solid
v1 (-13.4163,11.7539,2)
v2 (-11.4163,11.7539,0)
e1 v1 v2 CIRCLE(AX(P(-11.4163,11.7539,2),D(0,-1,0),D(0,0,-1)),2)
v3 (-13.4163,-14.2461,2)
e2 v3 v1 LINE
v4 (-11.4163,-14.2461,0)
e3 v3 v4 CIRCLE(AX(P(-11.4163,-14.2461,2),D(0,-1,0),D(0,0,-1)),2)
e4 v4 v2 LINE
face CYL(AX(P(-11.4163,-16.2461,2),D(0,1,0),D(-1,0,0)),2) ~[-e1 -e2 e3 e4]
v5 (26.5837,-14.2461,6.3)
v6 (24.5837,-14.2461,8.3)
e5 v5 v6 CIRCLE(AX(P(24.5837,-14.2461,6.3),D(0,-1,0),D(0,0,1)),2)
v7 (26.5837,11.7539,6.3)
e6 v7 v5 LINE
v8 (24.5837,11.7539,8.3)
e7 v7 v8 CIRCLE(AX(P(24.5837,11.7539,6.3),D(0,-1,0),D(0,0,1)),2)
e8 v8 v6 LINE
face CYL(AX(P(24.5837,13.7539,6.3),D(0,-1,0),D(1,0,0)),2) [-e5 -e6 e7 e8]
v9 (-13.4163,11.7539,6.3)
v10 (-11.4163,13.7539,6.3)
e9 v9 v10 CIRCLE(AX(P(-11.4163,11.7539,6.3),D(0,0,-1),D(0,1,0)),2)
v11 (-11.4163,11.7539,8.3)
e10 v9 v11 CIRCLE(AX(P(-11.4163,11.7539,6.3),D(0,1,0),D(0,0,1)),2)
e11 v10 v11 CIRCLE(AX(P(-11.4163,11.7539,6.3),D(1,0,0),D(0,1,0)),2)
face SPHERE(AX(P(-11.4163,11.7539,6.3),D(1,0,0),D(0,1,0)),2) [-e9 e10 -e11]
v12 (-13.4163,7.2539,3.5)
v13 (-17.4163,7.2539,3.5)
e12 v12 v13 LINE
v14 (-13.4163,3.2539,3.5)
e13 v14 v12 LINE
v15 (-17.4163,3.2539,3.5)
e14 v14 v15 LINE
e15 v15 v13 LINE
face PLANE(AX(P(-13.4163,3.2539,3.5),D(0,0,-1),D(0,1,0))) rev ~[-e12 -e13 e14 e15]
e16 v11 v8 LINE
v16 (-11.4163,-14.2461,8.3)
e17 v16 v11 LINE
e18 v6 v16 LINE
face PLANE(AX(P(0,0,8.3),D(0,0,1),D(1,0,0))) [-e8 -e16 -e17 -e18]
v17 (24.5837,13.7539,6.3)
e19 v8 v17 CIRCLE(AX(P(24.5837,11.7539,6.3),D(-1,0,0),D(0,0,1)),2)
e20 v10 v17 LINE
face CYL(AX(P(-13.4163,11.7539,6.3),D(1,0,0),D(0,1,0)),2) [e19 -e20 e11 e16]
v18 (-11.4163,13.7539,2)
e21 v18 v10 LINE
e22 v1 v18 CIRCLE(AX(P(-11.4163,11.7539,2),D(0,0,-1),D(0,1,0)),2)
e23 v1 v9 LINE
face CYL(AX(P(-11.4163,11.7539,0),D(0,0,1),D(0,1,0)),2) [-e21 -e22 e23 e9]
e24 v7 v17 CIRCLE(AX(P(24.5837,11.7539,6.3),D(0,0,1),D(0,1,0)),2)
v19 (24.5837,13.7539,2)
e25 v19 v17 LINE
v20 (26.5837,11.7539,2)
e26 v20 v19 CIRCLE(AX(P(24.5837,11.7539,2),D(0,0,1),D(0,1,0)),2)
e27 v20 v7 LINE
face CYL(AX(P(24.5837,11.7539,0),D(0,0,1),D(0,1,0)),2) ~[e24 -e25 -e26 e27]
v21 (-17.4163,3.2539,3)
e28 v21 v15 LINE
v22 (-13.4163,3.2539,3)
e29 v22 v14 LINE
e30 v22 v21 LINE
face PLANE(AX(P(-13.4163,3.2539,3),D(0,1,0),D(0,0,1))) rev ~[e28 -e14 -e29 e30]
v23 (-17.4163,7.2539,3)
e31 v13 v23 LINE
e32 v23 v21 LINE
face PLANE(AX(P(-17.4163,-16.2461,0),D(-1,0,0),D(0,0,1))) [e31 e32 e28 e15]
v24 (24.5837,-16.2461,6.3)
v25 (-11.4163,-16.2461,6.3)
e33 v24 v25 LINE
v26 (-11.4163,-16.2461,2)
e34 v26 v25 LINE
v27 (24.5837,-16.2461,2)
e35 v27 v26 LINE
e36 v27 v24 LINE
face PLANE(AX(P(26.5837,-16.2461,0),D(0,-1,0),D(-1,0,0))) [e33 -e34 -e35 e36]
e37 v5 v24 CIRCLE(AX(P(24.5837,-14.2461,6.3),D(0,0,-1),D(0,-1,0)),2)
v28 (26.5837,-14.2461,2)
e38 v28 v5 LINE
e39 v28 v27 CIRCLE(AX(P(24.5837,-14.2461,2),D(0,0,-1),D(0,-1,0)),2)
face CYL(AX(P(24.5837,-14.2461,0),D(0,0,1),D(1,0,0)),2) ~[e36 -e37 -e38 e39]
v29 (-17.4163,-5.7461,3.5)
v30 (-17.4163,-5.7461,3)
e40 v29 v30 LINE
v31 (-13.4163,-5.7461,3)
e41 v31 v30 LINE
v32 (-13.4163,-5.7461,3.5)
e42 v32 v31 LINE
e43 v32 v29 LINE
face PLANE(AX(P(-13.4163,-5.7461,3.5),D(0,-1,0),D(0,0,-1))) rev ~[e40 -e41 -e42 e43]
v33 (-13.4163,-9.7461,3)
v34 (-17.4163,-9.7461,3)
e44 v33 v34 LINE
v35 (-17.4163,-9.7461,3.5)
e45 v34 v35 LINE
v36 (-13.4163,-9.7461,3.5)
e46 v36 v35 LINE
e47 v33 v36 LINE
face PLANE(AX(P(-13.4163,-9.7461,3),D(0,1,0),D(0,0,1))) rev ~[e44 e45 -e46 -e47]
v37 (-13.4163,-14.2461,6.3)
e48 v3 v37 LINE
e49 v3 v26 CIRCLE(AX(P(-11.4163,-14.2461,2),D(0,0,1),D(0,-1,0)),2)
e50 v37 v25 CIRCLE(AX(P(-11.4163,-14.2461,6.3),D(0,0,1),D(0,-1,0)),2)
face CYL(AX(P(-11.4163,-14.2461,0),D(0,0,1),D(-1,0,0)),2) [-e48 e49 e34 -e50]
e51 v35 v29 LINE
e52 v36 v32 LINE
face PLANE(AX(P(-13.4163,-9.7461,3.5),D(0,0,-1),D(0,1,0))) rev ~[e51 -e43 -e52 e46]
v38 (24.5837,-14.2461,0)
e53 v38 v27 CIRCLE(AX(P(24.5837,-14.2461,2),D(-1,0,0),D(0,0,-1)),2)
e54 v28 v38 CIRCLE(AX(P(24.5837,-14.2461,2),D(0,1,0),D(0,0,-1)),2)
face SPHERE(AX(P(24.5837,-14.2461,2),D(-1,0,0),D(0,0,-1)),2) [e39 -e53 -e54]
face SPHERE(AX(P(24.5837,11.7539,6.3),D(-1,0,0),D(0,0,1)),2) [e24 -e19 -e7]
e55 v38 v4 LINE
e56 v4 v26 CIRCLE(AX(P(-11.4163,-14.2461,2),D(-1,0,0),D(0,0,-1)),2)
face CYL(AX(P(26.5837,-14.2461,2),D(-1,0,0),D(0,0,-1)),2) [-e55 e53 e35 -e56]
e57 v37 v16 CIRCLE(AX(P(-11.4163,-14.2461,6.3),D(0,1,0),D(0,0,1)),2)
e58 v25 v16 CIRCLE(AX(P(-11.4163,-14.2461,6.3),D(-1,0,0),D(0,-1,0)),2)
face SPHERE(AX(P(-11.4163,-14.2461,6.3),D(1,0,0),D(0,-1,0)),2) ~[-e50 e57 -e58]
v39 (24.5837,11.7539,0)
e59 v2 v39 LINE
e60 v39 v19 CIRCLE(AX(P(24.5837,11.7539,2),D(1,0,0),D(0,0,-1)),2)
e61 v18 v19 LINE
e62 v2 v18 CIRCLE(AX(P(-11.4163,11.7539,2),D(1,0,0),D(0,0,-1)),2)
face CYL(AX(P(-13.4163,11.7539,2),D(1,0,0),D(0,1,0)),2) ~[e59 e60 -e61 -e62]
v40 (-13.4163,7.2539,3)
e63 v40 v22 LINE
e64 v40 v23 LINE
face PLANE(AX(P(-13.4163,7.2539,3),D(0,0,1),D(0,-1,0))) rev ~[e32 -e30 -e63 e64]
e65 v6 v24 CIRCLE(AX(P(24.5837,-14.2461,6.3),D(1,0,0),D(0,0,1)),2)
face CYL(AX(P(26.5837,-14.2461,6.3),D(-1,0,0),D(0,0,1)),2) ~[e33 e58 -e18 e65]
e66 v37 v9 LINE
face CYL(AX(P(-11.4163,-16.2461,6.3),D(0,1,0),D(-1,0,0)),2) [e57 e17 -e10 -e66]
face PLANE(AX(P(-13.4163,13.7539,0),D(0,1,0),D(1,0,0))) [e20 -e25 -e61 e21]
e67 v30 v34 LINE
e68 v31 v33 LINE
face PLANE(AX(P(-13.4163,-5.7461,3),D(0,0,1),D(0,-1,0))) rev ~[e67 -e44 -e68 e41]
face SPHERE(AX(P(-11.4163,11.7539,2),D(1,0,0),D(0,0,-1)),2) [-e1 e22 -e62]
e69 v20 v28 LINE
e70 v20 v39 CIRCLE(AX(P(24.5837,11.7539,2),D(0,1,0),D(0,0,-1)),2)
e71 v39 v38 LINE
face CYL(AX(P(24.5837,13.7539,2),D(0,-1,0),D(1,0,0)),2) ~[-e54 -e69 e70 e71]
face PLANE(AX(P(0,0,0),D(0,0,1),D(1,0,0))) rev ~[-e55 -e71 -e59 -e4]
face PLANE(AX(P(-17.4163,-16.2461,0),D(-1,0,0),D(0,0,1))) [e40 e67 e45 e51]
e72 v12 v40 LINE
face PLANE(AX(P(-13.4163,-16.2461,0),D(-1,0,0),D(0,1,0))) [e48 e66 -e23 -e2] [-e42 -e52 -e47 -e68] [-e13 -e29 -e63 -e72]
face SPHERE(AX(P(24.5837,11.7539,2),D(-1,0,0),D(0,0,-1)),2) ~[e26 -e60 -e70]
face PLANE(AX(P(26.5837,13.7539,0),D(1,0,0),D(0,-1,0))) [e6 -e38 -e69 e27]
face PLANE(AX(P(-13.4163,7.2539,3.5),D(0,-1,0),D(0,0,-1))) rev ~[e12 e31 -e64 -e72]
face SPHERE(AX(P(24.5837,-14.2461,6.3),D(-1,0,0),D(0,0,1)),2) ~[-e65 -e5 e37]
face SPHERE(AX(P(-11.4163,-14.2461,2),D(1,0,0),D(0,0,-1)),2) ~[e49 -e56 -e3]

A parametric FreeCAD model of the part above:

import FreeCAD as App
import Part
import Sketcher

V = App.Vector


def edges_at(feature, points):
    """Names of the edges that pass closest to the given points."""
    edges = feature.Shape.Edges
    near = lambda p: min(range(len(edges)), key=lambda i: edges[i].distToShape(Part.Vertex(*p))[0])
    return sorted({f"Edge{near(p) + 1}" for p in points})

doc = App.newDocument("Part")
body = doc.addObject("PartDesign::Body", "Body")

# Sketch on XY plane
sketch1 = body.newObject("Sketcher::SketchObject", "Sketch")
sketch1.AttachmentSupport = (doc.getObject("XY_Plane"), [""])
sketch1.MapMode = "FlatFace"
sketch1.addGeometry([
    Part.LineSegment(V(26.5837, 13.7539, 0), V(-13.4163, 13.7539, 0)),
    Part.LineSegment(V(-13.4163, 13.7539, 0), V(-13.4163, -16.2461, 0)),
    Part.LineSegment(V(-13.4163, -16.2461, 0), V(26.5837, -16.2461, 0)),
    Part.LineSegment(V(26.5837, -16.2461, 0), V(26.5837, 13.7539, 0)),
], False)
sketch1.addConstraint([
    Sketcher.Constraint("Coincident", 0, 2, 1, 1),
    Sketcher.Constraint("Coincident", 1, 2, 2, 1),
    Sketcher.Constraint("Coincident", 2, 2, 3, 1),
    Sketcher.Constraint("Coincident", 3, 2, 0, 1),
    Sketcher.Constraint("Horizontal", 0),
    Sketcher.Constraint("Vertical", 1),
    Sketcher.Constraint("Horizontal", 2),
    Sketcher.Constraint("Vertical", 3),
    Sketcher.Constraint("DistanceX", 0, 2, 0, 1, 40.0),
    Sketcher.Constraint("DistanceY", 1, 2, 1, 1, 30.0),
    Sketcher.Constraint("DistanceY", -1, 1, 0, 2, 13.754),
    Sketcher.Constraint("DistanceX", 0, 2, -1, 1, 13.4163),
])
pad1 = body.newObject("PartDesign::Pad", "Pad")
pad1.Profile = sketch1
pad1.Length = 8.3

# Sketch on YZ plane
sketch2 = body.newObject("Sketcher::SketchObject", "Sketch001")
sketch2.AttachmentSupport = (doc.getObject("YZ_Plane"), [""])
sketch2.MapMode = "FlatFace"
sketch2.AttachmentOffset = App.Placement(V(0, 0, -13.4163), App.Rotation())
sketch2.addGeometry([
    Part.LineSegment(V(-5.7461, 3, 0), V(-9.7461, 3, 0)),  # 0
    Part.LineSegment(V(-9.7461, 3, 0), V(-9.7461, 3.5, 0)),  # 1
    Part.LineSegment(V(-9.7461, 3.5, 0), V(-5.7461, 3.5, 0)),  # 2
    Part.LineSegment(V(-5.7461, 3.5, 0), V(-5.7461, 3, 0)),  # 3
    Part.LineSegment(V(7.2539, 3, 0), V(3.2539, 3, 0)),  # 4
    Part.LineSegment(V(3.2539, 3, 0), V(3.2539, 3.5, 0)),  # 5
    Part.LineSegment(V(3.2539, 3.5, 0), V(7.2539, 3.5, 0)),  # 6
    Part.LineSegment(V(7.2539, 3.5, 0), V(7.2539, 3, 0)),  # 7
], False)
sketch2.addConstraint([
    Sketcher.Constraint("Coincident", 0, 2, 1, 1),
    Sketcher.Constraint("Coincident", 1, 2, 2, 1),
    Sketcher.Constraint("Coincident", 2, 2, 3, 1),
    Sketcher.Constraint("Coincident", 3, 2, 0, 1),
    Sketcher.Constraint("Coincident", 4, 2, 5, 1),
    Sketcher.Constraint("Coincident", 5, 2, 6, 1),
    Sketcher.Constraint("Coincident", 6, 2, 7, 1),
    Sketcher.Constraint("Coincident", 7, 2, 4, 1),
    Sketcher.Constraint("Horizontal", 0),
    Sketcher.Constraint("Vertical", 1),
    Sketcher.Constraint("Horizontal", 2),
    Sketcher.Constraint("Vertical", 3),
    Sketcher.Constraint("Horizontal", 4),
    Sketcher.Constraint("Vertical", 5),
    Sketcher.Constraint("Horizontal", 6),
    Sketcher.Constraint("Vertical", 7),
    Sketcher.Constraint("Horizontal", 3, 2, 4, 2),
    Sketcher.Constraint("Horizontal", 2, 2, 5, 2),
    Sketcher.Constraint("Equal", 2, 4),
    Sketcher.Constraint("DistanceX", 0, 2, 0, 1, 4.0),
    Sketcher.Constraint("DistanceY", 1, 1, 1, 2, 0.5),
    Sketcher.Constraint("DistanceY", -1, 1, 0, 2, 3.0),
    Sketcher.Constraint("DistanceX", 3, 2, 4, 2, 9.0),
    Sketcher.Constraint("DistanceX", 0, 2, -1, 1, 9.746),
])
pad2 = body.newObject("PartDesign::Pad", "Pad001")
pad2.Profile = sketch2
pad2.Length = 4
pad2.Reversed = True
doc.recompute()

fillet = body.newObject("PartDesign::Fillet", "Fillet")
fillet.Base = (pad2, edges_at(pad2, [
    (6.584, 13.754, 8.3),
    (6.584, 13.754, 0),
    (6.584, -16.246, 8.3),
    (6.584, -16.246, 0),
    (26.584, -1.246, 0),
    (26.584, -1.246, 8.3),
    (26.584, -16.246, 4.15),
    (-13.416, -1.246, 0),
    (-13.416, -16.246, 4.15),
    (-13.416, 13.754, 4.15),
    (-13.416, -1.246, 8.3),
    (26.584, 13.754, 4.15),
]))
fillet.Radius = 2

doc.recompute()
